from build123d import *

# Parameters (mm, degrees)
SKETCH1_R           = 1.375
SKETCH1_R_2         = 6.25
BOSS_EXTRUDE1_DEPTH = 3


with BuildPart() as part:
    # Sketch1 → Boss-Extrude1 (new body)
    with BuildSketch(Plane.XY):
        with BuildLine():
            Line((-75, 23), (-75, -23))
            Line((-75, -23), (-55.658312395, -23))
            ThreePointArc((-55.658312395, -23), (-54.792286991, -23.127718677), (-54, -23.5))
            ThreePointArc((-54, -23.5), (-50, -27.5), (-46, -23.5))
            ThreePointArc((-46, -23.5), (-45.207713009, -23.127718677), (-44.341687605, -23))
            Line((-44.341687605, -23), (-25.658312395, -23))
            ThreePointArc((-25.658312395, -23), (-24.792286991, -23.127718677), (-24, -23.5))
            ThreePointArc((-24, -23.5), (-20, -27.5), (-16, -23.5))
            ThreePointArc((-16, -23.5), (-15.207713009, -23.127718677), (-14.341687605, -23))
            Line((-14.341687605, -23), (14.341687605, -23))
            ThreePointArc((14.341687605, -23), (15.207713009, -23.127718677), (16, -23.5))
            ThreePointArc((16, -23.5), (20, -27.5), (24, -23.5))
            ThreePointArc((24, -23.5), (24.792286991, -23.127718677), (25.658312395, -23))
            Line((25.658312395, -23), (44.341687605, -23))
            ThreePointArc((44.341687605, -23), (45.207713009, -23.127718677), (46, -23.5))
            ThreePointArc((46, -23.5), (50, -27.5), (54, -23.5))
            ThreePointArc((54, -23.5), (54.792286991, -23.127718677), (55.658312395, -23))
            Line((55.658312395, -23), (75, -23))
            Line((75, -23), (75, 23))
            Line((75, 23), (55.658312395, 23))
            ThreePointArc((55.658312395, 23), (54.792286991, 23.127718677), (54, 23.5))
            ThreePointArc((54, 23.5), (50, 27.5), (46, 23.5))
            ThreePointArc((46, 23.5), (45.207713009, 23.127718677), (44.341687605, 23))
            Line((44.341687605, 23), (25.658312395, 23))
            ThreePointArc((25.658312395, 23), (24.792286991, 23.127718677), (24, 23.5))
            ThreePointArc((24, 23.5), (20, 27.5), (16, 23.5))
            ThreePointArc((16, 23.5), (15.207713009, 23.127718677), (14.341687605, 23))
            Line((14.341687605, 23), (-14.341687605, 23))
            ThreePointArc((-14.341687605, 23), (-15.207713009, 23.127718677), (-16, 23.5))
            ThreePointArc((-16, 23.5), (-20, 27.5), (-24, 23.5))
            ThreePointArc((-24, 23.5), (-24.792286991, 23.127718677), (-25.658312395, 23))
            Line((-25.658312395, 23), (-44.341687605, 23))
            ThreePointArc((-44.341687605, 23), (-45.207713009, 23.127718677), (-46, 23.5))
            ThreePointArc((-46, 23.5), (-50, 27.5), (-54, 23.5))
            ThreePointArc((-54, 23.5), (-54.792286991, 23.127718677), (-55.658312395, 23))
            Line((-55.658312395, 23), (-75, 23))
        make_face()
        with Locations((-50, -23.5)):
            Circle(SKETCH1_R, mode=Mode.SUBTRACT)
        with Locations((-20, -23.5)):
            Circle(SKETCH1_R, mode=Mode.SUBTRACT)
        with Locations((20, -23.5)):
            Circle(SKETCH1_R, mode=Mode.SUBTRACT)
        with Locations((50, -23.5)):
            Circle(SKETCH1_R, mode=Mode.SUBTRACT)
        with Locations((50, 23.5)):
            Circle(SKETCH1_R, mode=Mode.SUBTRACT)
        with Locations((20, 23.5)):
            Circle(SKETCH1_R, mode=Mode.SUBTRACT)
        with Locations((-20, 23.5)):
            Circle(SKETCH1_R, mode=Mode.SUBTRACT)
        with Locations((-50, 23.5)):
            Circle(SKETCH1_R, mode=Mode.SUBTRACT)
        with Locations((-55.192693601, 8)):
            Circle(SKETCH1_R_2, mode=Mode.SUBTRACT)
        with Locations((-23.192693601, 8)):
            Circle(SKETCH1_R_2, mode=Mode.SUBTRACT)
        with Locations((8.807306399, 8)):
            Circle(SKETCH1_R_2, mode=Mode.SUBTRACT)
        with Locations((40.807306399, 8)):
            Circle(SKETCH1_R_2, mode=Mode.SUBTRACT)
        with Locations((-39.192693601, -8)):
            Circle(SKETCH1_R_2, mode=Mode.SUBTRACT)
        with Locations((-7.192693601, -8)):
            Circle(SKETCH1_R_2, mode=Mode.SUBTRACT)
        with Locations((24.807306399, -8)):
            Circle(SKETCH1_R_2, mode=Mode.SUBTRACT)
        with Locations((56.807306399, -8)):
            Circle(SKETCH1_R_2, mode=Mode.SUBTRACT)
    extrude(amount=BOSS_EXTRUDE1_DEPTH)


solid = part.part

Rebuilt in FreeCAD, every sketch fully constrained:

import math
import FreeCAD as App
import Part
import Sketcher
from FreeCAD import Vector
Q = App.Units.Quantity

doc = App.newDocument("Part")
body = doc.addObject("PartDesign::Body", "Body")

sketch1 = body.newObject("Sketcher::SketchObject", "Sketch")
sketch1.AttachmentSupport = (doc.getObject("XY_Plane"), [""])
sketch1.MapMode = "FlatFace"
sketch1.addGeometry(Part.LineSegment(Vector(-75, 23, 0), Vector(-75, -23, 0)), False)
sketch1.addGeometry(Part.LineSegment(Vector(-75, -23, 0), Vector(-55.658312, -23, 0)), False)
sketch1.addGeometry(Part.ArcOfCircle(Part.Circle(Vector(-55.658312, -26, 0), Vector(0, 0, 1), 3), math.radians(56.44269), math.radians(90)), False)
sketch1.addGeometry(Part.ArcOfCircle(Part.Circle(Vector(-50, -23.5, 0), Vector(0, 0, 1), 4), math.radians(180), math.radians(360)), False)
sketch1.addGeometry(Part.ArcOfCircle(Part.Circle(Vector(-44.341688, -26, 0), Vector(0, 0, 1), 3), math.radians(90), math.radians(123.55731)), False)
sketch1.addGeometry(Part.LineSegment(Vector(-44.341688, -23, 0), Vector(-25.658312, -23, 0)), False)
sketch1.addGeometry(Part.ArcOfCircle(Part.Circle(Vector(-25.658312, -26, 0), Vector(0, 0, 1), 3), math.radians(56.44269), math.radians(90)), False)
sketch1.addGeometry(Part.ArcOfCircle(Part.Circle(Vector(-20, -23.5, 0), Vector(0, 0, 1), 4), math.radians(180), math.radians(360)), False)
sketch1.addGeometry(Part.ArcOfCircle(Part.Circle(Vector(-14.341688, -26, 0), Vector(0, 0, 1), 3), math.radians(90), math.radians(123.55731)), False)
sketch1.addGeometry(Part.LineSegment(Vector(-14.341688, -23, 0), Vector(14.341688, -23, 0)), False)
sketch1.addGeometry(Part.ArcOfCircle(Part.Circle(Vector(14.341688, -26, 0), Vector(0, 0, 1), 3), math.radians(56.44269), math.radians(90)), False)
sketch1.addGeometry(Part.ArcOfCircle(Part.Circle(Vector(20, -23.5, 0), Vector(0, 0, 1), 4), math.radians(180), math.radians(360)), False)
sketch1.addGeometry(Part.ArcOfCircle(Part.Circle(Vector(25.658312, -26, 0), Vector(0, 0, 1), 3), math.radians(90), math.radians(123.55731)), False)
sketch1.addGeometry(Part.LineSegment(Vector(25.658312, -23, 0), Vector(44.341688, -23, 0)), False)
sketch1.addGeometry(Part.ArcOfCircle(Part.Circle(Vector(44.341688, -26, 0), Vector(0, 0, 1), 3), math.radians(56.44269), math.radians(90)), False)
sketch1.addGeometry(Part.ArcOfCircle(Part.Circle(Vector(50, -23.5, 0), Vector(0, 0, 1), 4), math.radians(180), math.radians(360)), False)
sketch1.addGeometry(Part.ArcOfCircle(Part.Circle(Vector(55.658312, -26, 0), Vector(0, 0, 1), 3), math.radians(90), math.radians(123.55731)), False)
sketch1.addGeometry(Part.LineSegment(Vector(55.658312, -23, 0), Vector(75, -23, 0)), False)
sketch1.addGeometry(Part.LineSegment(Vector(75, -23, 0), Vector(75, 23, 0)), False)
sketch1.addGeometry(Part.LineSegment(Vector(75, 23, 0), Vector(55.658312, 23, 0)), False)
sketch1.addGeometry(Part.ArcOfCircle(Part.Circle(Vector(55.658312, 26, 0), Vector(0, 0, 1), 3), math.radians(-123.55731), math.radians(-90)), False)
sketch1.addGeometry(Part.ArcOfCircle(Part.Circle(Vector(50, 23.5, 0), Vector(0, 0, 1), 4), math.radians(0), math.radians(180)), False)
sketch1.addGeometry(Part.ArcOfCircle(Part.Circle(Vector(44.341688, 26, 0), Vector(0, 0, 1), 3), math.radians(-90), math.radians(-56.44269)), False)
sketch1.addGeometry(Part.LineSegment(Vector(44.341688, 23, 0), Vector(25.658312, 23, 0)), False)
sketch1.addGeometry(Part.ArcOfCircle(Part.Circle(Vector(25.658312, 26, 0), Vector(0, 0, 1), 3), math.radians(-123.55731), math.radians(-90)), False)
sketch1.addGeometry(Part.ArcOfCircle(Part.Circle(Vector(20, 23.5, 0), Vector(0, 0, 1), 4), math.radians(0), math.radians(180)), False)
sketch1.addGeometry(Part.ArcOfCircle(Part.Circle(Vector(14.341688, 26, 0), Vector(0, 0, 1), 3), math.radians(-90), math.radians(-56.44269)), False)
sketch1.addGeometry(Part.LineSegment(Vector(14.341688, 23, 0), Vector(-14.341688, 23, 0)), False)
sketch1.addGeometry(Part.ArcOfCircle(Part.Circle(Vector(-14.341688, 26, 0), Vector(0, 0, 1), 3), math.radians(-123.55731), math.radians(-90)), False)
sketch1.addGeometry(Part.ArcOfCircle(Part.Circle(Vector(-20, 23.5, 0), Vector(0, 0, 1), 4), math.radians(0), math.radians(180)), False)
sketch1.addGeometry(Part.ArcOfCircle(Part.Circle(Vector(-25.658312, 26, 0), Vector(0, 0, 1), 3), math.radians(-90), math.radians(-56.44269)), False)
sketch1.addGeometry(Part.LineSegment(Vector(-25.658312, 23, 0), Vector(-44.341688, 23, 0)), False)
sketch1.addGeometry(Part.ArcOfCircle(Part.Circle(Vector(-44.341688, 26, 0), Vector(0, 0, 1), 3), math.radians(-123.55731), math.radians(-90)), False)
sketch1.addGeometry(Part.ArcOfCircle(Part.Circle(Vector(-50, 23.5, 0), Vector(0, 0, 1), 4), math.radians(0), math.radians(180)), False)
sketch1.addGeometry(Part.ArcOfCircle(Part.Circle(Vector(-55.658312, 26, 0), Vector(0, 0, 1), 3), math.radians(-90), math.radians(-56.44269)), False)
sketch1.addGeometry(Part.LineSegment(Vector(-55.658312, 23, 0), Vector(-75, 23, 0)), False)
sketch1.addGeometry(Part.Circle(Vector(-50, -23.5, 0), Vector(0, 0, 1), 1.375), False)
sketch1.addGeometry(Part.Circle(Vector(-20, -23.5, 0), Vector(0, 0, 1), 1.375), False)
sketch1.addGeometry(Part.Circle(Vector(-39.192694, -8, 0), Vector(0, 0, 1), 6.25), False)
sketch1.addGeometry(Part.Circle(Vector(-7.192694, -8, 0), Vector(0, 0, 1), 6.25), False)
sketch1.addGeometry(Part.Circle(Vector(20, -23.5, 0), Vector(0, 0, 1), 1.375), False)
sketch1.addGeometry(Part.Circle(Vector(50, -23.5, 0), Vector(0, 0, 1), 1.375), False)
sketch1.addGeometry(Part.Circle(Vector(24.807306, -8, 0), Vector(0, 0, 1), 6.25), False)
sketch1.addGeometry(Part.Circle(Vector(56.807306, -8, 0), Vector(0, 0, 1), 6.25), False)
sketch1.addGeometry(Part.Circle(Vector(-55.192694, 8, 0), Vector(0, 0, 1), 6.25), False)
sketch1.addGeometry(Part.Circle(Vector(-23.192694, 8, 0), Vector(0, 0, 1), 6.25), False)
sketch1.addGeometry(Part.Circle(Vector(-50, 23.5, 0), Vector(0, 0, 1), 1.375), False)
sketch1.addGeometry(Part.Circle(Vector(-20, 23.5, 0), Vector(0, 0, 1), 1.375), False)
sketch1.addGeometry(Part.Circle(Vector(8.807306, 8, 0), Vector(0, 0, 1), 6.25), False)
sketch1.addGeometry(Part.Circle(Vector(40.807306, 8, 0), Vector(0, 0, 1), 6.25), False)
sketch1.addGeometry(Part.Circle(Vector(20, 23.5, 0), Vector(0, 0, 1), 1.375), False)
sketch1.addGeometry(Part.Circle(Vector(50, 23.5, 0), Vector(0, 0, 1), 1.375), False)
sketch1.addConstraint(Sketcher.Constraint("Coincident", 0, 2, 1, 1))
sketch1.addConstraint(Sketcher.Constraint("Tangent", 1, 2, 2, 2))
sketch1.addConstraint(Sketcher.Constraint("Coincident", 2, 1, 3, 1))
sketch1.addConstraint(Sketcher.Constraint("Coincident", 3, 2, 4, 2))
sketch1.addConstraint(Sketcher.Constraint("Tangent", 4, 1, 5, 1))
sketch1.addConstraint(Sketcher.Constraint("Tangent", 5, 2, 6, 2))
sketch1.addConstraint(Sketcher.Constraint("Coincident", 6, 1, 7, 1))
sketch1.addConstraint(Sketcher.Constraint("Coincident", 7, 2, 8, 2))
sketch1.addConstraint(Sketcher.Constraint("Tangent", 8, 1, 9, 1))
sketch1.addConstraint(Sketcher.Constraint("Tangent", 9, 2, 10, 2))
sketch1.addConstraint(Sketcher.Constraint("Coincident", 10, 1, 11, 1))
sketch1.addConstraint(Sketcher.Constraint("Coincident", 11, 2, 12, 2))
sketch1.addConstraint(Sketcher.Constraint("Tangent", 12, 1, 13, 1))
sketch1.addConstraint(Sketcher.Constraint("Tangent", 13, 2, 14, 2))
sketch1.addConstraint(Sketcher.Constraint("Coincident", 14, 1, 15, 1))
sketch1.addConstraint(Sketcher.Constraint("Coincident", 15, 2, 16, 2))
sketch1.addConstraint(Sketcher.Constraint("Tangent", 16, 1, 17, 1))
sketch1.addConstraint(Sketcher.Constraint("Coincident", 17, 2, 18, 1))
sketch1.addConstraint(Sketcher.Constraint("Coincident", 18, 2, 19, 1))
sketch1.addConstraint(Sketcher.Constraint("Tangent", 19, 2, 20, 2))
sketch1.addConstraint(Sketcher.Constraint("Coincident", 20, 1, 21, 1))
sketch1.addConstraint(Sketcher.Constraint("Coincident", 21, 2, 22, 2))
sketch1.addConstraint(Sketcher.Constraint("Tangent", 22, 1, 23, 1))
sketch1.addConstraint(Sketcher.Constraint("Tangent", 23, 2, 24, 2))
sketch1.addConstraint(Sketcher.Constraint("Coincident", 24, 1, 25, 1))
sketch1.addConstraint(Sketcher.Constraint("Coincident", 25, 2, 26, 2))
sketch1.addConstraint(Sketcher.Constraint("Tangent", 26, 1, 27, 1))
sketch1.addConstraint(Sketcher.Constraint("Tangent", 27, 2, 28, 2))
sketch1.addConstraint(Sketcher.Constraint("Coincident", 28, 1, 29, 1))
sketch1.addConstraint(Sketcher.Constraint("Coincident", 29, 2, 30, 2))
sketch1.addConstraint(Sketcher.Constraint("Tangent", 30, 1, 31, 1))
sketch1.addConstraint(Sketcher.Constraint("Tangent", 31, 2, 32, 2))
sketch1.addConstraint(Sketcher.Constraint("Coincident", 32, 1, 33, 1))
sketch1.addConstraint(Sketcher.Constraint("Coincident", 33, 2, 34, 2))
sketch1.addConstraint(Sketcher.Constraint("Tangent", 34, 1, 35, 1))
sketch1.addConstraint(Sketcher.Constraint("Coincident", 35, 2, 0, 1))
sketch1.addConstraint(Sketcher.Constraint("Vertical", 0))
sketch1.addConstraint(Sketcher.Constraint("Horizontal", 1))
sketch1.addConstraint(Sketcher.Constraint("Horizontal", 5))
sketch1.addConstraint(Sketcher.Constraint("Horizontal", 9))
sketch1.addConstraint(Sketcher.Constraint("Horizontal", 13))
sketch1.addConstraint(Sketcher.Constraint("Horizontal", 17))
sketch1.addConstraint(Sketcher.Constraint("Vertical", 18))
sketch1.addConstraint(Sketcher.Constraint("Horizontal", 19))
sketch1.addConstraint(Sketcher.Constraint("Horizontal", 23))
sketch1.addConstraint(Sketcher.Constraint("Horizontal", 27))
sketch1.addConstraint(Sketcher.Constraint("Horizontal", 31))
sketch1.addConstraint(Sketcher.Constraint("Horizontal", 35))
sketch1.addConstraint(Sketcher.Constraint("Coincident", 36, 3, 3, 3))
sketch1.addConstraint(Sketcher.Constraint("Coincident", 37, 3, 7, 3))
sketch1.addConstraint(Sketcher.Constraint("Coincident", 40, 3, 11, 3))
sketch1.addConstraint(Sketcher.Constraint("Coincident", 41, 3, 15, 3))
sketch1.addConstraint(Sketcher.Constraint("Coincident", 46, 3, 33, 3))
sketch1.addConstraint(Sketcher.Constraint("Coincident", 47, 3, 29, 3))
sketch1.addConstraint(Sketcher.Constraint("Coincident", 50, 3, 25, 3))
sketch1.addConstraint(Sketcher.Constraint("Coincident", 51, 3, 21, 3))
sketch1.addConstraint(Sketcher.Constraint("Equal", 2, 4))
sketch1.addConstraint(Sketcher.Constraint("Equal", 4, 6))
sketch1.addConstraint(Sketcher.Constraint("Equal", 3, 7))
sketch1.addConstraint(Sketcher.Constraint("Equal", 6, 8))
sketch1.addConstraint(Sketcher.Constraint("Equal", 8, 10))
sketch1.addConstraint(Sketcher.Constraint("Equal", 7, 11))
sketch1.addConstraint(Sketcher.Constraint("Equal", 10, 12))
sketch1.addConstraint(Sketcher.Constraint("Equal", 12, 14))
sketch1.addConstraint(Sketcher.Constraint("Equal", 11, 15))
sketch1.addConstraint(Sketcher.Constraint("Equal", 14, 16))
sketch1.addConstraint(Sketcher.Constraint("Equal", 16, 20))
sketch1.addConstraint(Sketcher.Constraint("Equal", 15, 21))
sketch1.addConstraint(Sketcher.Constraint("Equal", 20, 22))
sketch1.addConstraint(Sketcher.Constraint("Equal", 22, 24))
sketch1.addConstraint(Sketcher.Constraint("Equal", 21, 25))
sketch1.addConstraint(Sketcher.Constraint("Equal", 24, 26))
sketch1.addConstraint(Sketcher.Constraint("Equal", 26, 28))
sketch1.addConstraint(Sketcher.Constraint("Equal", 25, 29))
sketch1.addConstraint(Sketcher.Constraint("Equal", 28, 30))
sketch1.addConstraint(Sketcher.Constraint("Equal", 30, 32))
sketch1.addConstraint(Sketcher.Constraint("Equal", 29, 33))
sketch1.addConstraint(Sketcher.Constraint("Equal", 32, 34))
sketch1.addConstraint(Sketcher.Constraint("Equal", 36, 37))
sketch1.addConstraint(Sketcher.Constraint("Equal", 38, 39))
sketch1.addConstraint(Sketcher.Constraint("Equal", 37, 40))
sketch1.addConstraint(Sketcher.Constraint("Equal", 40, 41))
sketch1.addConstraint(Sketcher.Constraint("Equal", 39, 42))
sketch1.addConstraint(Sketcher.Constraint("Equal", 42, 43))
sketch1.addConstraint(Sketcher.Constraint("Equal", 43, 44))
sketch1.addConstraint(Sketcher.Constraint("Equal", 44, 45))
sketch1.addConstraint(Sketcher.Constraint("Equal", 41, 46))
sketch1.addConstraint(Sketcher.Constraint("Equal", 46, 47))
sketch1.addConstraint(Sketcher.Constraint("Equal", 45, 48))
sketch1.addConstraint(Sketcher.Constraint("Equal", 48, 49))
sketch1.addConstraint(Sketcher.Constraint("Equal", 47, 50))
sketch1.addConstraint(Sketcher.Constraint("Equal", 50, 51))
sketch1.addConstraint(Sketcher.Constraint("Symmetric", 2, 3, 20, 3, -1, 1))
sketch1.addConstraint(Sketcher.Constraint("Symmetric", 3, 3, 21, 3, -1, 1))
sketch1.addConstraint(Sketcher.Constraint("Symmetric", 4, 3, 22, 3, -1, 1))
sketch1.addConstraint(Sketcher.Constraint("Symmetric", 7, 3, 25, 3, -1, 1))
sketch1.addConstraint(Sketcher.Constraint("Symmetric", 8, 3, 26, 3, -1, 1))
sketch1.addConstraint(Sketcher.Constraint("Symmetric", 11, 3, 29, 3, -1, 1))
sketch1.addConstraint(Sketcher.Constraint("Symmetric", 12, 3, 30, 3, -1, 1))
sketch1.addConstraint(Sketcher.Constraint("Symmetric", 15, 3, 33, 3, -1, 1))
sketch1.addConstraint(Sketcher.Constraint("Symmetric", 16, 3, 34, 3, -1, 1))
sketch1.addConstraint(Sketcher.Constraint("Symmetric", 7, 3, 11, 3, -2))
sketch1.addConstraint(Sketcher.Constraint("Symmetric", 6, 3, 12, 3, -2))
sketch1.addConstraint(Sketcher.Constraint("Symmetric", 3, 3, 15, 3, -2))
sketch1.addConstraint(Sketcher.Constraint("Symmetric", 2, 3, 16, 3, -2))
sketch1.addConstraint(Sketcher.Constraint("Horizontal", 2, 3, 4, 3))
sketch1.addConstraint(Sketcher.Constraint("Horizontal", 3, 3, 7, 3))
sketch1.addConstraint(Sketcher.Constraint("Horizontal", 6, 3, 8, 3))
sketch1.addConstraint(Sketcher.Constraint("Horizontal", 38, 3, 39, 3))
sketch1.addConstraint(Sketcher.Constraint("Horizontal", 39, 3, 42, 3))
sketch1.addConstraint(Sketcher.Constraint("Horizontal", 42, 3, 43, 3))
sketch1.addConstraint(Sketcher.Constraint("Horizontal", 44, 3, 45, 3))
sketch1.addConstraint(Sketcher.Constraint("Horizontal", 45, 3, 48, 3))
sketch1.addConstraint(Sketcher.Constraint("Horizontal", 48, 3, 49, 3))
sketch1.addConstraint(Sketcher.Constraint("Horizontal", 41, 3, 2, 1))
sketch1.addConstraint(Sketcher.Constraint("Horizontal", 2, 1, 3, 2))
sketch1.addConstraint(Sketcher.Constraint("Horizontal", 3, 2, 6, 1))
sketch1.addConstraint(Sketcher.Constraint("Horizontal", 6, 1, 7, 2))
sketch1.addConstraint(Sketcher.Constraint("Horizontal", 7, 2, 10, 1))
sketch1.addConstraint(Sketcher.Constraint("Horizontal", 11, 2, 14, 1))
sketch1.addConstraint(Sketcher.Constraint("Horizontal", 21, 2, 24, 1))
sketch1.addConstraint(Sketcher.Constraint("Horizontal", 25, 2, 28, 1))
sketch1.addConstraint(Sketcher.Constraint("Horizontal", 29, 2, 32, 1))
sketch1.addConstraint(Sketcher.Constraint("Equal", 1, 17))
sketch1.addConstraint(Sketcher.Constraint("Radius", 2, Q("3 mm")))
sketch1.addConstraint(Sketcher.Constraint("Radius", 3, Q("4 mm")))
sketch1.addConstraint(Sketcher.Constraint("Diameter", 38, Q("12.5 mm")))
sketch1.addConstraint(Sketcher.Constraint("Diameter", 36, Q("2.75 mm")))
sketch1.addConstraint(Sketcher.Constraint("DistanceY", 0, 2, 0, 1, Q("46 mm")))
sketch1.addConstraint(Sketcher.Constraint("DistanceX", 3, 3, -1, 1, Q("50 mm")))
sketch1.addConstraint(Sketcher.Constraint("DistanceX", 7, 3, -1, 1, Q("20 mm")))
sketch1.addConstraint(Sketcher.Constraint("DistanceY", 38, 3, -1, 1, Q("8 mm")))
sketch1.addConstraint(Sketcher.Constraint("DistanceY", -1, 1, 44, 3, Q("8 mm")))
sketch1.addConstraint(Sketcher.Constraint("DistanceX", 0, 2, -1, 1, Q("75 mm")))
sketch1.addConstraint(Sketcher.Constraint("DistanceY", 3, 3, -1, 1, Q("23.5 mm")))
sketch1.addConstraint(Sketcher.Constraint("DistanceX", 38, 3, -1, 1, Q("39.192694 mm")))
sketch1.addConstraint(Sketcher.Constraint("DistanceX", 39, 3, -1, 1, Q("7.192694 mm")))
sketch1.addConstraint(Sketcher.Constraint("DistanceX", -1, 1, 42, 3, Q("24.807306 mm")))
sketch1.addConstraint(Sketcher.Constraint("DistanceX", -1, 1, 43, 3, Q("56.807306 mm")))
sketch1.addConstraint(Sketcher.Constraint("DistanceX", 44, 3, -1, 1, Q("55.192694 mm")))
sketch1.addConstraint(Sketcher.Constraint("DistanceX", 45, 3, -1, 1, Q("23.192694 mm")))
sketch1.addConstraint(Sketcher.Constraint("DistanceX", -1, 1, 48, 3, Q("8.807306 mm")))
sketch1.addConstraint(Sketcher.Constraint("DistanceX", -1, 1, 49, 3, Q("40.807306 mm")))
pad1 = body.newObject("PartDesign::Pad", "Pad")
pad1.Profile = sketch1
pad1.Length = 3

doc.recompute()
